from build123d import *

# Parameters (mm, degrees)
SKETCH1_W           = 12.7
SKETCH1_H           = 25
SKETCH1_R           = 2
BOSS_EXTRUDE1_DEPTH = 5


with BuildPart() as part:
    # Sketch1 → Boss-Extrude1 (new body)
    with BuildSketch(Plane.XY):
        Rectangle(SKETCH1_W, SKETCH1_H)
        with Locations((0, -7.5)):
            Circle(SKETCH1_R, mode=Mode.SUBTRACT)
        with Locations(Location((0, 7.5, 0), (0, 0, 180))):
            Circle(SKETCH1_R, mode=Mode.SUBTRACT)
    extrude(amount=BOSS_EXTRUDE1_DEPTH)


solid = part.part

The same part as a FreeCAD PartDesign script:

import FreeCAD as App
import Part
import Sketcher
from FreeCAD import Vector

doc = App.newDocument("Part")
body = doc.addObject("PartDesign::Body", "Body")

sketch1 = body.newObject("Sketcher::SketchObject", "Sketch")
sketch1.AttachmentSupport = (doc.getObject("XY_Plane"), [""])
sketch1.MapMode = "FlatFace"
sketch1.addGeometry(Part.LineSegment(Vector(-6.35, 12.5, 0), Vector(-6.35, -12.5, 0)), False)
sketch1.addGeometry(Part.LineSegment(Vector(-6.35, -12.5, 0), Vector(6.35, -12.5, 0)), False)
sketch1.addGeometry(Part.LineSegment(Vector(6.35, -12.5, 0), Vector(6.35, 12.5, 0)), False)
sketch1.addGeometry(Part.LineSegment(Vector(6.35, 12.5, 0), Vector(-6.35, 12.5, 0)), False)
sketch1.addGeometry(Part.Circle(Vector(0, -7.5, 0), Vector(0, 0, 1), 2), False)
sketch1.addGeometry(Part.Circle(Vector(0, 7.5, 0), Vector(0, 0, 1), 2), False)
sketch1.addConstraint(Sketcher.Constraint("Coincident", 0, 2, 1, 1))
sketch1.addConstraint(Sketcher.Constraint("Coincident", 1, 2, 2, 1))
sketch1.addConstraint(Sketcher.Constraint("Coincident", 2, 2, 3, 1))
sketch1.addConstraint(Sketcher.Constraint("Coincident", 3, 2, 0, 1))
sketch1.addConstraint(Sketcher.Constraint("Vertical", 0))
sketch1.addConstraint(Sketcher.Constraint("Horizontal", 1))
sketch1.addConstraint(Sketcher.Constraint("Vertical", 2))
sketch1.addConstraint(Sketcher.Constraint("Horizontal", 3))
sketch1.addConstraint(Sketcher.Constraint("Equal", 4, 5))
sketch1.addConstraint(Sketcher.Constraint("Symmetric", 4, 3, 5, 3, -1, 1))
sketch1.addConstraint(Sketcher.Constraint("Symmetric", 0, 2, 2, 2, -1, 1))
sketch1.addConstraint(Sketcher.Constraint("PointOnObject", 4, 3, -2))
sketch1.addConstraint(Sketcher.Constraint("Diameter", 4, 4.0))
sketch1.addConstraint(Sketcher.Constraint("DistanceY", 0, 2, 0, 1, 25.0))
sketch1.addConstraint(Sketcher.Constraint("DistanceX", 1, 1, 1, 2, 12.7))
sketch1.addConstraint(Sketcher.Constraint("DistanceY", 4, 3, 5, 3, 15.0))
pad1 = body.newObject("PartDesign::Pad", "Pad")
pad1.Profile = sketch1
pad1.Length = 5

doc.recompute()
